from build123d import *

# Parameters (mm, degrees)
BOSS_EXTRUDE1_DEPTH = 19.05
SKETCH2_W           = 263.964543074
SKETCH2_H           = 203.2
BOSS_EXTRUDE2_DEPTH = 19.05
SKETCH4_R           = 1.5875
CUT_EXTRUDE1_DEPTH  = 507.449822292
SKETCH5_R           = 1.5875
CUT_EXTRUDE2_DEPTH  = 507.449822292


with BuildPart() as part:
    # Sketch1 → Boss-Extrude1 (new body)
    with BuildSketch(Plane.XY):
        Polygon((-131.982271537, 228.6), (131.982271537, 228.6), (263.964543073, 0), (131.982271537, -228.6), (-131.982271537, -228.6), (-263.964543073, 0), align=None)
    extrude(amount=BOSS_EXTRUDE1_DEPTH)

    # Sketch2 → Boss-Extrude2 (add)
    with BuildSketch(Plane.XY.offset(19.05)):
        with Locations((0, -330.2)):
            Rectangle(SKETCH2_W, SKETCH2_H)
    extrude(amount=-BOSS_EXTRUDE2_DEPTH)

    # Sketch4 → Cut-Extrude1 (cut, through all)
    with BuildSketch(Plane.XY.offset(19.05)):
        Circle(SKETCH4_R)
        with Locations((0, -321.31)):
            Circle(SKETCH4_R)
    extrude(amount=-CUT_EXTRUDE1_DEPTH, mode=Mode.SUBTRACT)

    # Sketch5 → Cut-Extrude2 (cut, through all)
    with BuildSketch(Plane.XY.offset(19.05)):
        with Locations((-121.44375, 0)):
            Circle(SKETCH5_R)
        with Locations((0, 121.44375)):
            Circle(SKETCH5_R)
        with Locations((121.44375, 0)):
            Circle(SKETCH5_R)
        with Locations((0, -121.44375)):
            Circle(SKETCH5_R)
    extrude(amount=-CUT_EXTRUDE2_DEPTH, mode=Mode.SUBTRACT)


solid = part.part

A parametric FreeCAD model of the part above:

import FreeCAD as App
import Part
import Sketcher
from FreeCAD import Vector
Q = App.Units.Quantity

doc = App.newDocument("Part")
params = doc.addObject("Spreadsheet::Sheet", "Params")
for row, (alias, value) in enumerate([
    ("pad1_length", "0.75 in"),
    ("sketch2_height", "8 in"),
    ("pad2_length", "0.75 in"),
    ("sketch3_diameter", "0.125 in"),
    ("sketch4_diameter", "0.125 in"),
], start=1):
    params.set(f"A{row}", alias)
    params.set(f"B{row}", "=" + value)
    params.setAlias(f"B{row}", alias)

body = doc.addObject("PartDesign::Body", "Body")

# Sketch on XY plane
sketch1 = doc.addObject("Sketcher::SketchObject", "Sketch")
body.addObject(sketch1)
sketch1.AttachmentSupport = (doc.XY_Plane, [""])
sketch1.MapMode = "FlatFace"
sketch1.addGeometry([
    Part.LineSegment(Vector(132, 229, 0), Vector(-132, 229, 0)),  # 0
    Part.LineSegment(Vector(-132, 229, 0), Vector(-264, 0, 0)),  # 1
    Part.LineSegment(Vector(-264, 0, 0), Vector(-132, -229, 0)),  # 2
    Part.LineSegment(Vector(-132, -229, 0), Vector(132, -229, 0)),  # 3
    Part.LineSegment(Vector(132, -229, 0), Vector(264, 0, 0)),  # 4
    Part.LineSegment(Vector(264, 0, 0), Vector(132, 229, 0)),  # 5
], False)
sketch1.addConstraint([
    Sketcher.Constraint("Coincident", 0, 2, 1, 1),
    Sketcher.Constraint("Coincident", 1, 2, 2, 1),
    Sketcher.Constraint("Coincident", 2, 2, 3, 1),
    Sketcher.Constraint("Coincident", 3, 2, 4, 1),
    Sketcher.Constraint("Coincident", 4, 2, 5, 1),
    Sketcher.Constraint("Coincident", 5, 2, 0, 1),
    Sketcher.Constraint("Horizontal", 0),
    Sketcher.Constraint("Horizontal", 3),
    Sketcher.Constraint("Symmetric", 0, 2, 3, 2, -1, 1),
    Sketcher.Constraint("Symmetric", 1, 2, 4, 2, -1, 1),
    Sketcher.Constraint("PointOnObject", 1, 2, -1),
    Sketcher.Constraint("Parallel", 2, 5),
    Sketcher.Constraint("Vertical", 0, 2, 2, 2),
    Sketcher.Constraint("DistanceY", -1, 1, 0, 2, Q("9 in")),
    Sketcher.Constraint("Angle", 1, Q("-120 deg")),
    Sketcher.Constraint("DistanceX", 0, 2, 0, 1, Q("263.964543 mm")),
])
pad1 = doc.addObject("PartDesign::Pad", "Pad")
body.addObject(pad1)
pad1.Profile = sketch1
pad1.setExpression("Length", "Params.pad1_length")

# Sketch on XY plane
sketch2 = doc.addObject("Sketcher::SketchObject", "Sketch001")
body.addObject(sketch2)
sketch2.AttachmentSupport = (doc.XY_Plane, [""])
sketch2.MapMode = "FlatFace"
sketch2.AttachmentOffset = App.Placement(Vector(0, 0, 0.75 * 25.4), App.Rotation())
sketch2.addGeometry([
    Part.LineSegment(Vector(-132, -229, 0), Vector(-132, -432, 0)),
    Part.LineSegment(Vector(-132, -432, 0), Vector(132, -432, 0)),
    Part.LineSegment(Vector(132, -432, 0), Vector(132, -229, 0)),
    Part.LineSegment(Vector(132, -229, 0), Vector(-132, -229, 0)),
], False)
sketch2.addConstraint([
    Sketcher.Constraint("Coincident", 0, 2, 1, 1),
    Sketcher.Constraint("Coincident", 1, 2, 2, 1),
    Sketcher.Constraint("Coincident", 2, 2, 3, 1),
    Sketcher.Constraint("Coincident", 3, 2, 0, 1),
    Sketcher.Constraint("Vertical", 0),
    Sketcher.Constraint("Horizontal", 1),
    Sketcher.Constraint("Vertical", 2),
    Sketcher.Constraint("Horizontal", 3),
    Sketcher.Constraint("DistanceY", 0, 2, 0, 1, Q("8 in")),
    Sketcher.Constraint("DistanceY", 0, 2, -1, 1, Q("17 in")),
    Sketcher.Constraint("DistanceX", 1, 1, 1, 2, Q("263.964543 mm")),
    Sketcher.Constraint("DistanceX", 0, 2, -1, 1, Q("131.982272 mm")),
])
sketch2.setExpression("Constraints[8]", "Params.sketch2_height")
pad2 = doc.addObject("PartDesign::Pad", "Pad001")
body.addObject(pad2)
pad2.Profile = sketch2
pad2.setExpression("Length", "Params.pad2_length")
pad2.Reversed = True

# Sketch on XY plane
sketch3 = doc.addObject("Sketcher::SketchObject", "Sketch002")
body.addObject(sketch3)
sketch3.AttachmentSupport = (doc.XY_Plane, [""])
sketch3.MapMode = "FlatFace"
sketch3.AttachmentOffset = App.Placement(Vector(0, 0, 0.75 * 25.4), App.Rotation())
sketch3.addGeometry([
    Part.Circle(Vector(0, 0, 0), Vector(0, 0, 1), 1.6),
    Part.Circle(Vector(0, -321.3, 0), Vector(0, 0, 1), 1.6),
], False)
sketch3.addConstraint([
    Sketcher.Constraint("Coincident", 0, 3, -1, 1),
    Sketcher.Constraint("Equal", 0, 1),
    Sketcher.Constraint("PointOnObject", 1, 3, -2),
    Sketcher.Constraint("Diameter", 0, Q("0.125 in")),
    Sketcher.Constraint("DistanceY", 1, 3, -1, 1, Q("12.65 in")),
])
sketch3.setExpression("Constraints[3]", "Params.sketch3_diameter")
pocket1 = doc.addObject("PartDesign::Pocket", "Pocket")
body.addObject(pocket1)
pocket1.Profile = sketch3
pocket1.Type = "ThroughAll"

# Sketch on XY plane
sketch4 = doc.addObject("Sketcher::SketchObject", "Sketch003")
body.addObject(sketch4)
sketch4.AttachmentSupport = (doc.XY_Plane, [""])
sketch4.MapMode = "FlatFace"
sketch4.AttachmentOffset = App.Placement(Vector(0, 0, 0.75 * 25.4), App.Rotation())
sketch4.addGeometry([
    Part.Circle(Vector(-121.4, 0, 0), Vector(0, 0, 1), 1.6),
    Part.Circle(Vector(0, 121.4, 0), Vector(0, 0, 1), 1.6),
    Part.Circle(Vector(121.4, 0, 0), Vector(0, 0, 1), 1.6),
    Part.Circle(Vector(0, -121.4, 0), Vector(0, 0, 1), 1.6),
], False)
sketch4.addConstraint([
    Sketcher.Constraint("Equal", 0, 1),
    Sketcher.Constraint("Equal", 1, 2),
    Sketcher.Constraint("Equal", 2, 3),
    Sketcher.Constraint("Symmetric", 0, 3, 2, 3, -1, 1),
    Sketcher.Constraint("Symmetric", 1, 3, 3, 3, -1, 1),
    Sketcher.Constraint("PointOnObject", 0, 3, -1),
    Sketcher.Constraint("PointOnObject", 1, 3, -2),
    Sketcher.Constraint("Diameter", 0, Q("0.125 in")),
    Sketcher.Constraint("DistanceX", 0, 3, -1, 1, Q("4.78125 in")),
    Sketcher.Constraint("DistanceY", -1, 1, 1, 3, Q("4.78125 in")),
])
sketch4.setExpression("Constraints[7]", "Params.sketch4_diameter")
pocket2 = doc.addObject("PartDesign::Pocket", "Pocket001")
body.addObject(pocket2)
pocket2.Profile = sketch4
pocket2.Type = "ThroughAll"

doc.recompute()
